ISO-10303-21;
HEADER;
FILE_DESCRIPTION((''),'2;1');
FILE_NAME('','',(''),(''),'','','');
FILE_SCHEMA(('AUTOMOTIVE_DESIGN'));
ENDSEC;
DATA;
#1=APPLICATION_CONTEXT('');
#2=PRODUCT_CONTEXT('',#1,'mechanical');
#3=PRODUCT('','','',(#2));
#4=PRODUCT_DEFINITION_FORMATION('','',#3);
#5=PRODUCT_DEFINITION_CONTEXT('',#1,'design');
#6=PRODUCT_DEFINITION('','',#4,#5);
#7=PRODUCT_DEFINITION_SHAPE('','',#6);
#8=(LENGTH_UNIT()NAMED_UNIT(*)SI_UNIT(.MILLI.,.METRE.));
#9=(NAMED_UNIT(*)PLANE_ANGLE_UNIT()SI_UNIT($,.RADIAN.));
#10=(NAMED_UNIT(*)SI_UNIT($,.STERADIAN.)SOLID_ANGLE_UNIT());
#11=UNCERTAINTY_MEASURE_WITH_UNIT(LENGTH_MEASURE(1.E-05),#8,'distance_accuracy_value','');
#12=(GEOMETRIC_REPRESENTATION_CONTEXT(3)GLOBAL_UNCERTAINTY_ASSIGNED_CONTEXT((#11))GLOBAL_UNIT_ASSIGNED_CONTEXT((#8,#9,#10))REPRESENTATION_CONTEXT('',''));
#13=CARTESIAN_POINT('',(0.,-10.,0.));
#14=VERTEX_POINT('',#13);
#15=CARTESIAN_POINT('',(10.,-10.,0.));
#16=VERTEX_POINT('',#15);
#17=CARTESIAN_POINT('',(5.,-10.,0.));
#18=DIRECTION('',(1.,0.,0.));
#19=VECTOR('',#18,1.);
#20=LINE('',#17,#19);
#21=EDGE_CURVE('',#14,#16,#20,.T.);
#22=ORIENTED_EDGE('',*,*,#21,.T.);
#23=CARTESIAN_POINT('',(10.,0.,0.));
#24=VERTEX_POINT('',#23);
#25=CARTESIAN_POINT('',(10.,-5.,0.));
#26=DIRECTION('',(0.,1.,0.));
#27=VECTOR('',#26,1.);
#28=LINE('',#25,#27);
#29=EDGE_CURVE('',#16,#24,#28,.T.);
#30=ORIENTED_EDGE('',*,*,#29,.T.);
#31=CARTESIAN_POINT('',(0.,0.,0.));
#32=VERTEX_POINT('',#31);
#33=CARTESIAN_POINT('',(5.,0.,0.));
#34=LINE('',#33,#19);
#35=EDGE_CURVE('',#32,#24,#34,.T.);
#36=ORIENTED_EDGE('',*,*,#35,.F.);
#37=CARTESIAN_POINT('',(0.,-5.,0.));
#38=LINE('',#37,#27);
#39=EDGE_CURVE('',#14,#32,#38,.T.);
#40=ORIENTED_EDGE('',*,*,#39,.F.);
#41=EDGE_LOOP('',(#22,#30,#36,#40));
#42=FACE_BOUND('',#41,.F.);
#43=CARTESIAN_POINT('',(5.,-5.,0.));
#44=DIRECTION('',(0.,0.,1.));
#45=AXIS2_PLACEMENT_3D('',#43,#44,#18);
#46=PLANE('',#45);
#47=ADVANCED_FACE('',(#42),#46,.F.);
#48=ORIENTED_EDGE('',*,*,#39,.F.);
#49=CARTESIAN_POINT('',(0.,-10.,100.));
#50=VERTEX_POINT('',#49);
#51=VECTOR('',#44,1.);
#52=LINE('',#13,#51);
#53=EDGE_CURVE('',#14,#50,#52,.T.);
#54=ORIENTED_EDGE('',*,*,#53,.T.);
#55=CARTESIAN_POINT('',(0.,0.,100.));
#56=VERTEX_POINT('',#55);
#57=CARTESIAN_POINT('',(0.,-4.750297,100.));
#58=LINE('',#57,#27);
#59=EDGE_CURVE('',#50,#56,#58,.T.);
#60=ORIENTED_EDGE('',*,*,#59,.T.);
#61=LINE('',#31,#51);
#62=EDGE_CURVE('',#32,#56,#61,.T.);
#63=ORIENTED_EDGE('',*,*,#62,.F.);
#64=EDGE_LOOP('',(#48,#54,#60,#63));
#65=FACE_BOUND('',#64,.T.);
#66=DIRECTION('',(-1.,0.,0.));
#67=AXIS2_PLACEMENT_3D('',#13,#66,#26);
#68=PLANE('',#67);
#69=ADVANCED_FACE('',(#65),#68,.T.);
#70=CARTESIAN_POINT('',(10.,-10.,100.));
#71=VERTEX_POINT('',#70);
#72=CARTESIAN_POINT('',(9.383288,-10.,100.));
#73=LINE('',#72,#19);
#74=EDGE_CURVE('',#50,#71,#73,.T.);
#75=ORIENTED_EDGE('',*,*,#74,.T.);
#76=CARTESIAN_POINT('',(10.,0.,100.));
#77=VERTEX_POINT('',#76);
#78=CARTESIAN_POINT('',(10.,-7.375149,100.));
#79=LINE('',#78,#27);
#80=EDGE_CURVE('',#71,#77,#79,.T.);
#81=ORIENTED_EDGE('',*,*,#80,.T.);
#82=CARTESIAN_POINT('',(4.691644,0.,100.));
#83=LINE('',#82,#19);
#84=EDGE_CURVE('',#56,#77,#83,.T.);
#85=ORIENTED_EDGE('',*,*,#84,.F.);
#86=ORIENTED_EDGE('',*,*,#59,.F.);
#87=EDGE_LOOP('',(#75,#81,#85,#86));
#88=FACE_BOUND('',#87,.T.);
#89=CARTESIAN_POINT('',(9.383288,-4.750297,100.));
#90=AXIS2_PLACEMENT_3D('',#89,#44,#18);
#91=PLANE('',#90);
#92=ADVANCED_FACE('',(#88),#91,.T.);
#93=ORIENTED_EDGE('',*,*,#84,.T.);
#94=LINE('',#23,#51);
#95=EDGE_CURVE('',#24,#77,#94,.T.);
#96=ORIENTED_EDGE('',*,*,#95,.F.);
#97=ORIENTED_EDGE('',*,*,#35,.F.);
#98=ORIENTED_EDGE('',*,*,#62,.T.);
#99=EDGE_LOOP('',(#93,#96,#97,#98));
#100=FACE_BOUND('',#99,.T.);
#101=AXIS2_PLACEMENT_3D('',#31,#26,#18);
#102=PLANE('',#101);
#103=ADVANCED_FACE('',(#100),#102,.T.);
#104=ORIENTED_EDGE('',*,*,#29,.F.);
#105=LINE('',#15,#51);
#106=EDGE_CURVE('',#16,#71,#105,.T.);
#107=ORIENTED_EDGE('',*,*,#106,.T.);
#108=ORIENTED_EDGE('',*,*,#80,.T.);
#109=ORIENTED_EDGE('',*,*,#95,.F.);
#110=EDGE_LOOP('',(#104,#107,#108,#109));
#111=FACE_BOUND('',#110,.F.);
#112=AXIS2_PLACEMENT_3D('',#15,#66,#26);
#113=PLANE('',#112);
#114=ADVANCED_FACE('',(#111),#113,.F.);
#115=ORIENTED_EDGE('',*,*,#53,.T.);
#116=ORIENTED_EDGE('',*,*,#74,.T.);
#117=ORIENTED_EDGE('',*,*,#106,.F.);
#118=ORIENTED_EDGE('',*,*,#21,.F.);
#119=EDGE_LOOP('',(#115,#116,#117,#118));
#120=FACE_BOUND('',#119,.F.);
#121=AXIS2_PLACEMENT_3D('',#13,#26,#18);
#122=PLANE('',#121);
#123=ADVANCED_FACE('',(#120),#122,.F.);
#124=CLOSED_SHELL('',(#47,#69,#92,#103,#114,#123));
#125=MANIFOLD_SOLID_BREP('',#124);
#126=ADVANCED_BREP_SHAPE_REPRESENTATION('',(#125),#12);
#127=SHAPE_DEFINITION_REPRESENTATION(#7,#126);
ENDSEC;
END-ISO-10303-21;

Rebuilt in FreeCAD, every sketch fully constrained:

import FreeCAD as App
import Part
import Sketcher
Q = App.Units.Quantity

doc = App.newDocument("Part")
body = doc.addObject("PartDesign::Body", "Body")

# Sketch on XY plane
sketch1 = doc.addObject("Sketcher::SketchObject", "Sketch")
body.addObject(sketch1)
sketch1.AttachmentSupport = (doc.XY_Plane, [""])
sketch1.MapMode = "FlatFace"
sketch1.addGeometry([
    Part.LineSegment(App.Vector(0, 0, 0), App.Vector(0, -10, 0)),
    Part.LineSegment(App.Vector(0, -10, 0), App.Vector(10, -10, 0)),
    Part.LineSegment(App.Vector(10, -10, 0), App.Vector(10, 0, 0)),
    Part.LineSegment(App.Vector(10, 0, 0), App.Vector(0, 0, 0)),
], False)
sketch1.addConstraint([
    Sketcher.Constraint("Coincident", 0, 2, 1, 1),
    Sketcher.Constraint("Coincident", 1, 2, 2, 1),
    Sketcher.Constraint("Coincident", 2, 2, 3, 1),
    Sketcher.Constraint("Coincident", 3, 2, 0, 1),
    Sketcher.Constraint("Vertical", 0),
    Sketcher.Constraint("Horizontal", 1),
    Sketcher.Constraint("Vertical", 2),
    Sketcher.Constraint("Horizontal", 3),
    Sketcher.Constraint("Coincident", 3, 2, -1, 1),
    Sketcher.Constraint("Equal", 3, 0),
    Sketcher.Constraint("DistanceX", 1, 1, 1, 2, Q("10 mm")),
])
pad1 = doc.addObject("PartDesign::Pad", "Pad")
body.addObject(pad1)
pad1.Profile = sketch1
pad1.Length = 205

# Sketch on YZ plane
sketch2 = doc.addObject("Sketcher::SketchObject", "Sketch001")
body.addObject(sketch2)
sketch2.AttachmentSupport = (doc.YZ_Plane, [""])
sketch2.MapMode = "FlatFace"
sketch2.AttachmentOffset = App.Placement(App.Vector(0, 0, 10), App.Rotation())
sketch2.addGeometry(Part.Circle(App.Vector(-5.053951, 200, 0), App.Vector(0, 0, 1), 3.5), False)
sketch2.addConstraint([
    Sketcher.Constraint("Diameter", 0, Q("7 mm")),
    Sketcher.Constraint("DistanceY", -1, 1, 0, 3, Q("200 mm")),
    Sketcher.Constraint("DistanceX", 0, 3, -1, 1, Q("5.053951 mm")),
])
pad2 = doc.addObject("PartDesign::Pad", "Pad001")
body.addObject(pad2)
pad2.Profile = sketch2
pad2.Length = 8

# Sketch on XY plane
sketch3 = doc.addObject("Sketcher::SketchObject", "Sketch002")
body.addObject(sketch3)
sketch3.AttachmentSupport = (doc.XY_Plane, [""])
sketch3.MapMode = "FlatFace"
sketch3.AttachmentOffset = App.Placement(App.Vector(0, 0, 205), App.Rotation())
sketch3.addGeometry([
    Part.LineSegment(App.Vector(0, 0.499406, 0), App.Vector(0, -10, 0)),
    Part.LineSegment(App.Vector(0, -10, 0), App.Vector(18.766576, -10, 0)),
    Part.LineSegment(App.Vector(18.766576, -10, 0), App.Vector(18.766576, 0.499406, 0)),
    Part.LineSegment(App.Vector(18.766576, 0.499406, 0), App.Vector(0, 0.499406, 0)),
], False)
sketch3.addConstraint([
    Sketcher.Constraint("Coincident", 0, 2, 1, 1),
    Sketcher.Constraint("Coincident", 1, 2, 2, 1),
    Sketcher.Constraint("Coincident", 2, 2, 3, 1),
    Sketcher.Constraint("Coincident", 3, 2, 0, 1),
    Sketcher.Constraint("Vertical", 0),
    Sketcher.Constraint("Horizontal", 1),
    Sketcher.Constraint("Vertical", 2),
    Sketcher.Constraint("Horizontal", 3),
    Sketcher.Constraint("PointOnObject", 0, 2, -2),
    Sketcher.Constraint("DistanceY", 0, 2, -1, 1, Q("10 mm")),
    Sketcher.Constraint("DistanceX", 1, 1, 1, 2, Q("18.766576 mm")),
    Sketcher.Constraint("DistanceY", 0, 2, 0, 1, Q("10.499406 mm")),
])
pocket1 = doc.addObject("PartDesign::Pocket", "Pocket")
body.addObject(pocket1)
pocket1.Profile = sketch3
pocket1.Length = 105

doc.recompute()
